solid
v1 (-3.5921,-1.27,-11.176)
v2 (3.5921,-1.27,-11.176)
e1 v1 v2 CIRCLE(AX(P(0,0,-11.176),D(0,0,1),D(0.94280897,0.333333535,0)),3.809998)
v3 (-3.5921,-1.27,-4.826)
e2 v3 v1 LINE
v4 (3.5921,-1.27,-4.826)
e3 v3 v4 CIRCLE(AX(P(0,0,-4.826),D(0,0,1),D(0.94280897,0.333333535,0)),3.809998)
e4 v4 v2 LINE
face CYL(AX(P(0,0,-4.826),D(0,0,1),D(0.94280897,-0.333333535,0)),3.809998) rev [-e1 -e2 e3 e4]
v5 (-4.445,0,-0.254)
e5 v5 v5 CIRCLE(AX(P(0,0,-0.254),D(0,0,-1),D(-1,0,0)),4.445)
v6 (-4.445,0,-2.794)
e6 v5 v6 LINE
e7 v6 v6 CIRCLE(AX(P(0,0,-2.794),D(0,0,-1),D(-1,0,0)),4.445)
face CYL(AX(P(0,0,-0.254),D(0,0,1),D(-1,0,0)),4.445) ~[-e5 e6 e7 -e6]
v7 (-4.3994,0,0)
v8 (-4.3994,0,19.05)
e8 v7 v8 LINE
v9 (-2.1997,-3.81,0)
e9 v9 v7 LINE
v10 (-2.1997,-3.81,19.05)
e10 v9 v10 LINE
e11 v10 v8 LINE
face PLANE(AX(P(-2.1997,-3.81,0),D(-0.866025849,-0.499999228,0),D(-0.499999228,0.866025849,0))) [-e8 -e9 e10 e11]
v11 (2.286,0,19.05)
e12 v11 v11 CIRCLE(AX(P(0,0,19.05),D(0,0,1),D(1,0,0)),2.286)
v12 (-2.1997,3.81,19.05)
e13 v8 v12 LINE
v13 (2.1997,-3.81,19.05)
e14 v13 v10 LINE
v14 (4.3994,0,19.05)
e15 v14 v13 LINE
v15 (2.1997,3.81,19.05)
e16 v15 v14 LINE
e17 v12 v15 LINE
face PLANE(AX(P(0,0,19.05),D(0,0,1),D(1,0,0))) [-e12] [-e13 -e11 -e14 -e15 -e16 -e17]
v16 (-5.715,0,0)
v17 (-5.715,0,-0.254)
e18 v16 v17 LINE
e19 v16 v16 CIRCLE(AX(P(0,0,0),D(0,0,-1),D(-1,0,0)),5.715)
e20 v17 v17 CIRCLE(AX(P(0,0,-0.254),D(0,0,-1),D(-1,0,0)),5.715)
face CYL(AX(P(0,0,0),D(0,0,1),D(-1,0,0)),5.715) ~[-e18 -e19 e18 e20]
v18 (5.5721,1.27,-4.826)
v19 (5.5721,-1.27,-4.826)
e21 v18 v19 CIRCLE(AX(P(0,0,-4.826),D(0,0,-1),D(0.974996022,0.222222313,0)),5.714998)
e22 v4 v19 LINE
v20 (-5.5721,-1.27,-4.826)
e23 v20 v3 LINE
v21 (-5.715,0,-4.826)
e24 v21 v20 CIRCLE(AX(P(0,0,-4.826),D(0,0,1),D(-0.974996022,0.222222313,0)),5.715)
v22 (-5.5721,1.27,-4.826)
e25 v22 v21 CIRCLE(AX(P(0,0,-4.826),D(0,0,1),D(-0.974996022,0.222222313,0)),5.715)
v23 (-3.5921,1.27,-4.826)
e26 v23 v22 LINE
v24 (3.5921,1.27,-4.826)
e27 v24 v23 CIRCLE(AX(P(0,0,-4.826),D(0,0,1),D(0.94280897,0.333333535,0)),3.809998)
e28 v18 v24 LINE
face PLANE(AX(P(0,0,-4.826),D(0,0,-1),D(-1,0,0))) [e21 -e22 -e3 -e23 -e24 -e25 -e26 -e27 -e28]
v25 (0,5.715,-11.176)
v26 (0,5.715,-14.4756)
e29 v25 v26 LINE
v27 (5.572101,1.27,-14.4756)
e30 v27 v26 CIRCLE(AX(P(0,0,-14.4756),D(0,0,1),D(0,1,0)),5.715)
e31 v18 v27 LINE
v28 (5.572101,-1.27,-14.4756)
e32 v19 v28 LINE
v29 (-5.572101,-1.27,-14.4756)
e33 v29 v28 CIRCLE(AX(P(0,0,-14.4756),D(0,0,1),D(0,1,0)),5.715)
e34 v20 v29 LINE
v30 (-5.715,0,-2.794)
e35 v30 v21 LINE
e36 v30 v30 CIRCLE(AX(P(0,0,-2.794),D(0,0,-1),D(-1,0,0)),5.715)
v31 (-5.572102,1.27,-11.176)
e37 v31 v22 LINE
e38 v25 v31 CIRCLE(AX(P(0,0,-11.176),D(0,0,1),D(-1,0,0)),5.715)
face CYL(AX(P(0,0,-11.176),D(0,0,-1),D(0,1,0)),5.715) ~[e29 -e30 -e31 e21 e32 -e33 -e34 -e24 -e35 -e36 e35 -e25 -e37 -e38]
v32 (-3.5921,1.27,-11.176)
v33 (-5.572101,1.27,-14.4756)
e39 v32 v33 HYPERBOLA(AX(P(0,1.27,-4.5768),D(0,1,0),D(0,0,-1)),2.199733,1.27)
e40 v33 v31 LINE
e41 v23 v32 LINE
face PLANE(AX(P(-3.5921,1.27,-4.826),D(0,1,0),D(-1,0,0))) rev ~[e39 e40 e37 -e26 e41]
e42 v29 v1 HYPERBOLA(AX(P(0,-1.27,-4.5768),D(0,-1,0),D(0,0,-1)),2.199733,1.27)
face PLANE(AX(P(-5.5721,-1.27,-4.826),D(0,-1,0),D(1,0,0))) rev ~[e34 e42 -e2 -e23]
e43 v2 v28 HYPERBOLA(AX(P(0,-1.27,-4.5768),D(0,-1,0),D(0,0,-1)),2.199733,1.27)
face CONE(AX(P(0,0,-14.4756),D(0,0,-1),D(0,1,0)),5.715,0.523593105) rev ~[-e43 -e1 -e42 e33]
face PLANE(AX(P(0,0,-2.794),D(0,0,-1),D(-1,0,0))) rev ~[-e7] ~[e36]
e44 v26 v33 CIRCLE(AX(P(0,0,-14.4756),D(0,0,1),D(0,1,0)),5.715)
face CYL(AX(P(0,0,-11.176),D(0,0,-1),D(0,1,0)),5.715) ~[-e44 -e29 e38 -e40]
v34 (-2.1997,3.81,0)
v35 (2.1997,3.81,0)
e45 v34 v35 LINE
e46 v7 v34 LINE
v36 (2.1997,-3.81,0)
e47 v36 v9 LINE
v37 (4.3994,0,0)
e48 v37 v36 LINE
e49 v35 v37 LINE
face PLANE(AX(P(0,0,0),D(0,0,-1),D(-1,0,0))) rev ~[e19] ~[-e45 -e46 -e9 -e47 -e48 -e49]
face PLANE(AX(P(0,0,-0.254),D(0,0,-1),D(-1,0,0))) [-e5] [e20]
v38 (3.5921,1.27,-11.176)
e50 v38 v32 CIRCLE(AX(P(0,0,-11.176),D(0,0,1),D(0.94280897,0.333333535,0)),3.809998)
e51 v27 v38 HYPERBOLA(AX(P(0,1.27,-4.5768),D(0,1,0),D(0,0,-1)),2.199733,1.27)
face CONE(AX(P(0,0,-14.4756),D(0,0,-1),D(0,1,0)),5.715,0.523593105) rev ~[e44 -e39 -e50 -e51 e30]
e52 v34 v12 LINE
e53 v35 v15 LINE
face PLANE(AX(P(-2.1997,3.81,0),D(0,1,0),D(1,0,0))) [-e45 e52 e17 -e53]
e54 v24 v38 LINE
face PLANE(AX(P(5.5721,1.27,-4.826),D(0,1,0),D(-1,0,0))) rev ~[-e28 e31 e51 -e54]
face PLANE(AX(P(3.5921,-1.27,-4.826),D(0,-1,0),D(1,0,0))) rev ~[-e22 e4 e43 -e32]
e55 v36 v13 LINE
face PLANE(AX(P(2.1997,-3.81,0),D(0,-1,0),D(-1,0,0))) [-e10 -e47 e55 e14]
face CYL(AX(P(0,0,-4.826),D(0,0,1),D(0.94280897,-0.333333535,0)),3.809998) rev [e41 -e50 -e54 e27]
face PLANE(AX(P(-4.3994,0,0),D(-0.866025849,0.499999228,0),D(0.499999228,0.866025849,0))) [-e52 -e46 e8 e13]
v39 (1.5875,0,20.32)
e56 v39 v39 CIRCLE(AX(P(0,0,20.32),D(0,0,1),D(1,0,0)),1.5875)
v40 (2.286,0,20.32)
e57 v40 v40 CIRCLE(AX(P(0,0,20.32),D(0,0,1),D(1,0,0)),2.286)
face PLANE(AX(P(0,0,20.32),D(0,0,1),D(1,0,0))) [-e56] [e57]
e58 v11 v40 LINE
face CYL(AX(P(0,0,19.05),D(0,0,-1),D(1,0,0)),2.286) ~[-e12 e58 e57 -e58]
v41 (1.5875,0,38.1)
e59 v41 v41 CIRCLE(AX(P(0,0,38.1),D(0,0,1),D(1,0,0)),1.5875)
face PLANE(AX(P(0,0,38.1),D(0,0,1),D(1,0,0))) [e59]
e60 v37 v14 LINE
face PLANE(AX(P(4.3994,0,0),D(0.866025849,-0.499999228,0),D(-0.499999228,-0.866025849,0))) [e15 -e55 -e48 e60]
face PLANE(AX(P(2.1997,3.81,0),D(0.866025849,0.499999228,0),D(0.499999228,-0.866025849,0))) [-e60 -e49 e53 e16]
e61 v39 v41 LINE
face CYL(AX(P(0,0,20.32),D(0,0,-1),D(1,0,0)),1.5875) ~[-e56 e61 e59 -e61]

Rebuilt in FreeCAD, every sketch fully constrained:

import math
import FreeCAD as App
import Part
import Sketcher
from FreeCAD import Vector
Q = App.Units.Quantity

doc = App.newDocument("Part")
body = doc.addObject("PartDesign::Body", "Body")

# Sketch on XY plane
sketch1 = body.newObject("Sketcher::SketchObject", "Sketch")
sketch1.AttachmentSupport = (doc.getObject("XY_Plane"), [""])
sketch1.MapMode = "FlatFace"
sketch1.addGeometry([
    Part.LineSegment(Vector(-2.2, -3.8, 0), Vector(2.2, -3.8, 0)),  # 0
    Part.LineSegment(Vector(2.2, -3.8, 0), Vector(4.4, 0, 0)),  # 1
    Part.LineSegment(Vector(4.4, 0, 0), Vector(2.2, 3.8, 0)),  # 2
    Part.LineSegment(Vector(2.2, 3.8, 0), Vector(-2.2, 3.8, 0)),  # 3
    Part.LineSegment(Vector(-2.2, 3.8, 0), Vector(-4.4, 0, 0)),  # 4
    Part.LineSegment(Vector(-4.4, 0, 0), Vector(-2.2, -3.8, 0)),  # 5
], False)
sketch1.addConstraint([
    Sketcher.Constraint("Coincident", 0, 2, 1, 1),
    Sketcher.Constraint("Coincident", 1, 2, 2, 1),
    Sketcher.Constraint("Coincident", 2, 2, 3, 1),
    Sketcher.Constraint("Coincident", 3, 2, 4, 1),
    Sketcher.Constraint("Coincident", 4, 2, 5, 1),
    Sketcher.Constraint("Coincident", 5, 2, 0, 1),
    Sketcher.Constraint("Horizontal", 0),
    Sketcher.Constraint("Horizontal", 3),
    Sketcher.Constraint("Symmetric", 0, 2, 3, 2, -1, 1),
    Sketcher.Constraint("Symmetric", 1, 2, 4, 2, -1, 1),
    Sketcher.Constraint("PointOnObject", 1, 2, -1),
    Sketcher.Constraint("Parallel", 2, 5),
    Sketcher.Constraint("Vertical", 0, 2, 2, 2),
    Sketcher.Constraint("DistanceY", 0, 2, 2, 2, Q("0.3 in")),
    Sketcher.Constraint("Angle", 1, Q("60 deg")),
    Sketcher.Constraint("DistanceX", 0, 1, 0, 2, Q("0.1732 in")),
])
pad1 = body.newObject("PartDesign::Pad", "Pad")
pad1.Profile = sketch1
pad1.Length = Q("0.75 in")

# Sketch on XY plane
sketch2 = body.newObject("Sketcher::SketchObject", "Sketch001")
sketch2.AttachmentSupport = (doc.getObject("XY_Plane"), [""])
sketch2.MapMode = "FlatFace"
sketch2.AttachmentOffset = App.Placement(Vector(0, 0, 0.75 * 25.4), App.Rotation())
sketch2.addGeometry(Part.Circle(Vector(0, 0, 0), Vector(0, 0, 1), 2.3), False)
sketch2.addConstraint([
    Sketcher.Constraint("Coincident", 0, 3, -1, 1),
    Sketcher.Constraint("Diameter", 0, Q("0.18 in")),
])
pad2 = body.newObject("PartDesign::Pad", "Pad001")
pad2.Profile = sketch2
pad2.Length = Q("0.05 in")

# Sketch on XY plane
sketch3 = body.newObject("Sketcher::SketchObject", "Sketch002")
sketch3.AttachmentSupport = (doc.getObject("XY_Plane"), [""])
sketch3.MapMode = "FlatFace"
sketch3.AttachmentOffset = App.Placement(Vector(0, 0, 0.8 * 25.4), App.Rotation())
sketch3.addGeometry(Part.Circle(Vector(0, 0, 0), Vector(0, 0, 1), 1.6), False)
sketch3.addConstraint([
    Sketcher.Constraint("Coincident", 0, 3, -1, 1),
    Sketcher.Constraint("Diameter", 0, Q("0.125 in")),
])
pad3 = body.newObject("PartDesign::Pad", "Pad002")
pad3.Profile = sketch3
pad3.Length = Q("0.7 in")

# Sketch on XY plane
sketch4 = body.newObject("Sketcher::SketchObject", "Sketch003")
sketch4.AttachmentSupport = (doc.getObject("XY_Plane"), [""])
sketch4.MapMode = "FlatFace"
sketch4.addGeometry(Part.Circle(Vector(0, 0, 0), Vector(0, 0, 1), 6), False)
sketch4.addConstraint([
    Sketcher.Constraint("Coincident", 0, 3, -1, 1),
    Sketcher.Constraint("Diameter", 0, Q("0.45 in")),
])
pad4 = body.newObject("PartDesign::Pad", "Pad003")
pad4.Profile = sketch4
pad4.Length = Q("0.01 in")
pad4.Reversed = True

# Sketch on XY plane
sketch5 = body.newObject("Sketcher::SketchObject", "Sketch004")
sketch5.AttachmentSupport = (doc.getObject("XY_Plane"), [""])
sketch5.MapMode = "FlatFace"
sketch5.AttachmentOffset = App.Placement(Vector(0, 0, -0.01 * 25.4), App.Rotation())
sketch5.addGeometry(Part.Circle(Vector(0, 0, 0), Vector(0, 0, 1), 4.4), False)
sketch5.addConstraint([
    Sketcher.Constraint("Coincident", 0, 3, -1, 1),
    Sketcher.Constraint("Diameter", 0, Q("0.35 in")),
])
pad5 = body.newObject("PartDesign::Pad", "Pad004")
pad5.Profile = sketch5
pad5.Length = Q("0.1 in")
pad5.Reversed = True

# Sketch on XY plane
sketch6 = body.newObject("Sketcher::SketchObject", "Sketch005")
sketch6.AttachmentSupport = (doc.getObject("XY_Plane"), [""])
sketch6.MapMode = "FlatFace"
sketch6.AttachmentOffset = App.Placement(Vector(0, 0, -0.11 * 25.4), App.Rotation())
sketch6.addGeometry(Part.Circle(Vector(0, 0, 0), Vector(0, 0, 1), 6), False)
sketch6.addConstraint([
    Sketcher.Constraint("Coincident", 0, 3, -1, 1),
    Sketcher.Constraint("Diameter", 0, Q("0.45 in")),
])
pad6 = body.newObject("PartDesign::Pad", "Pad005")
pad6.Profile = sketch6
pad6.Length = Q("0.08 in")
pad6.Reversed = True

# Sketch on XY plane
sketch7 = body.newObject("Sketcher::SketchObject", "Sketch006")
sketch7.AttachmentSupport = (doc.getObject("XY_Plane"), [""])
sketch7.MapMode = "FlatFace"
sketch7.AttachmentOffset = App.Placement(Vector(0, 0, -0.19 * 25.4), App.Rotation())
sketch7.addGeometry([
    Part.Circle(Vector(0, 0, 0), Vector(0, 0, 1), 5.7),
    Part.Circle(Vector(0, 0, 0), Vector(0, 0, 1), 3.8),
], False)
sketch7.addConstraint([
    Sketcher.Constraint("Coincident", 0, 3, -1, 1),
    Sketcher.Constraint("Coincident", 1, 3, -1, 1),
    Sketcher.Constraint("Diameter", 1, Q("0.3 in")),
    Sketcher.Constraint("Diameter", 0, Q("0.45 in")),
])
pad7 = body.newObject("PartDesign::Pad", "Pad006")
pad7.Profile = sketch7
pad7.Length = Q("0.25 in")
pad7.Reversed = True

# Sketch on YZ plane
sketch8 = body.newObject("Sketcher::SketchObject", "Sketch007")
sketch8.AttachmentSupport = (doc.getObject("YZ_Plane"), [""])
sketch8.MapMode = "FlatFace"
sketch8.addGeometry([
    Part.LineSegment(Vector(5.7, -11.2, 0), Vector(3.8, -11.2, 0)),
    Part.LineSegment(Vector(3.8, -11.2, 0), Vector(5.7, -14.5, 0)),
    Part.LineSegment(Vector(5.7, -14.5, 0), Vector(5.7, -11.2, 0)),
], False)
sketch8.addConstraint([
    Sketcher.Constraint("Coincident", 0, 2, 1, 1),
    Sketcher.Constraint("Coincident", 1, 2, 2, 1),
    Sketcher.Constraint("Coincident", 2, 2, 0, 1),
    Sketcher.Constraint("Horizontal", 0),
    Sketcher.Constraint("Vertical", 2),
    Sketcher.Constraint("Angle", 1, Q("-60.0003 deg")),
    Sketcher.Constraint("Distance", 1, Q("0.15 in")),
    Sketcher.Constraint("DistanceX", -1, 1, 0, 2, Q("0.15 in")),
    Sketcher.Constraint("DistanceY", 0, 2, -1, 1, Q("0.44 in")),
])
revolution = body.newObject("PartDesign::Revolution", "Revolution")
revolution.Profile = sketch8
revolution.ReferenceAxis = (sketch8, ["V_Axis"])
revolution.Angle = 360

# Sketch on XY plane
sketch9 = body.newObject("Sketcher::SketchObject", "Sketch008")
sketch9.AttachmentSupport = (doc.getObject("XY_Plane"), [""])
sketch9.MapMode = "FlatFace"
sketch9.AttachmentOffset = App.Placement(Vector(0, 0, -0.19 * 25.4), App.Rotation())
sketch9.addGeometry([
    Part.ArcOfCircle(Part.Circle(Vector(0, 0, 0), Vector(0, 0, 1), 3.8), math.radians(161), math.radians(199)),  # 0
    Part.LineSegment(Vector(-3.6, -1.3, 0), Vector(-5.6, -1.3, 0)),  # 1
    Part.ArcOfCircle(Part.Circle(Vector(0, 0, 0), Vector(0, 0, 1), 5.7), math.radians(167), math.radians(193)),  # 2
    Part.LineSegment(Vector(-5.6, 1.3, 0), Vector(-3.6, 1.3, 0)),  # 3
    Part.ArcOfCircle(Part.Circle(Vector(0, 0, 0), Vector(0, 0, 1), 3.8), math.radians(-19), math.radians(19)),  # 4
    Part.LineSegment(Vector(3.6, 1.3, 0), Vector(5.6, 1.3, 0)),  # 5
    Part.ArcOfCircle(Part.Circle(Vector(0, 0, 0), Vector(0, 0, 1), 5.7), math.radians(-13), math.radians(13)),  # 6
    Part.LineSegment(Vector(5.6, -1.3, 0), Vector(3.6, -1.3, 0)),  # 7
], False)
sketch9.addConstraint([
    Sketcher.Constraint("Coincident", 0, 2, 1, 1),
    Sketcher.Constraint("Coincident", 1, 2, 2, 2),
    Sketcher.Constraint("Coincident", 2, 1, 3, 1),
    Sketcher.Constraint("Coincident", 3, 2, 0, 1),
    Sketcher.Constraint("Coincident", 4, 2, 5, 1),
    Sketcher.Constraint("Coincident", 5, 2, 6, 2),
    Sketcher.Constraint("Coincident", 6, 1, 7, 1),
    Sketcher.Constraint("Coincident", 7, 2, 4, 1),
    Sketcher.Constraint("Horizontal", 1),
    Sketcher.Constraint("Horizontal", 3),
    Sketcher.Constraint("Horizontal", 5),
    Sketcher.Constraint("Horizontal", 7),
    Sketcher.Constraint("Coincident", 0, 3, -1, 1),
    Sketcher.Constraint("Coincident", 2, 3, -1, 1),
    Sketcher.Constraint("Coincident", 4, 3, -1, 1),
    Sketcher.Constraint("Coincident", 6, 3, -1, 1),
    Sketcher.Constraint("Equal", 0, 4),
    Sketcher.Constraint("Equal", 2, 6),
    Sketcher.Constraint("Horizontal", 3, 2, 4, 2),
    Sketcher.Constraint("Horizontal", 1, 2, 6, 1),
    Sketcher.Constraint("Vertical", 1, 2, 2, 1),
    Sketcher.Constraint("Radius", 0, Q("0.15 in")),
    Sketcher.Constraint("Radius", 2, Q("0.225 in")),
    Sketcher.Constraint("DistanceY", 1, 2, 2, 1, Q("0.1 in")),
])
pocket1 = body.newObject("PartDesign::Pocket", "Pocket")
pocket1.Profile = sketch9
pocket1.Length = Q("0.3799055 in")

doc.recompute()
